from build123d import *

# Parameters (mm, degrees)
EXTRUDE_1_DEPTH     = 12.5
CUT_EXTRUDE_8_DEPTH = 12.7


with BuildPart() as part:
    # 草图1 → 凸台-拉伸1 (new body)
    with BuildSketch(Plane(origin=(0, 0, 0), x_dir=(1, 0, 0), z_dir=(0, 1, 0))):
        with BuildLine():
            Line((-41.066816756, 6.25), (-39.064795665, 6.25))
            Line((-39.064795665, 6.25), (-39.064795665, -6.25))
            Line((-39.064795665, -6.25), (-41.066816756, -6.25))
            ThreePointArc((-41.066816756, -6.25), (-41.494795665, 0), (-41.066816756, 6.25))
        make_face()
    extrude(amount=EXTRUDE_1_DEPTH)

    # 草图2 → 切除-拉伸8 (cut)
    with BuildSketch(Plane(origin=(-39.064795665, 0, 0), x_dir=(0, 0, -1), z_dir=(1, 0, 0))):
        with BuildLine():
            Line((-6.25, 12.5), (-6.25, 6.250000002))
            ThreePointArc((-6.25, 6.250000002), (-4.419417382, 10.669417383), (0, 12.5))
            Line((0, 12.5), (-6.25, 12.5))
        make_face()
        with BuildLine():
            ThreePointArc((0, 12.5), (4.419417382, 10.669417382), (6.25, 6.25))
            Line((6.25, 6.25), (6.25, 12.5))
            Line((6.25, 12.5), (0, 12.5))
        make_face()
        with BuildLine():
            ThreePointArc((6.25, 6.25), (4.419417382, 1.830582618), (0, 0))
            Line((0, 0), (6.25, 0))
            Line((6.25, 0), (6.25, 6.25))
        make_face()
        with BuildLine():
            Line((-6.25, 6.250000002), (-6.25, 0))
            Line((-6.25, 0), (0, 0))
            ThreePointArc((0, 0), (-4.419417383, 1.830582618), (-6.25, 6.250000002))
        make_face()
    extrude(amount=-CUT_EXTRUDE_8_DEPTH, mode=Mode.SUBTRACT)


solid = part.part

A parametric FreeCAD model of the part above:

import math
import FreeCAD as App
import Part
import Sketcher

V = App.Vector

doc = App.newDocument("Part")
body = doc.addObject("PartDesign::Body", "Body")

sketch1 = body.newObject("Sketcher::SketchObject", "Sketch")
sketch1.AttachmentSupport = (doc.getObject("XZ_Plane"), [""])
sketch1.MapMode = "FlatFace"
sketch1.addGeometry([
    Part.LineSegment(V(-39.064796, -6.25, 0), V(-41.066817, -6.25, 0)),
    Part.ArcOfCircle(Part.Circle(V(4.355204, 0, 0), V(0, 0, 1), 45.85), math.radians(172.165387), math.radians(187.834613)),
    Part.LineSegment(V(-41.066817, 6.25, 0), V(-39.064796, 6.25, 0)),
    Part.LineSegment(V(-39.064796, 6.25, 0), V(-39.064796, -6.25, 0)),
], False)
sketch1.addConstraint([
    Sketcher.Constraint("Coincident", 0, 2, 1, 2),
    Sketcher.Constraint("Coincident", 1, 1, 2, 1),
    Sketcher.Constraint("Coincident", 2, 2, 3, 1),
    Sketcher.Constraint("Coincident", 3, 2, 0, 1),
    Sketcher.Constraint("Horizontal", 0),
    Sketcher.Constraint("Horizontal", 2),
    Sketcher.Constraint("Vertical", 3),
    Sketcher.Constraint("Symmetric", 0, 2, 1, 1, -1),
    Sketcher.Constraint("Radius", 1, 45.85),
    Sketcher.Constraint("DistanceY", 3, 2, 3, 1, 12.5),
    Sketcher.Constraint("DistanceX", 2, 2, 1, 3, 43.42),
    Sketcher.Constraint("DistanceX", -1, 1, 1, 3, 4.355204),
])
pad1 = body.newObject("PartDesign::Pad", "Pad")
pad1.Profile = sketch1
pad1.Length = 12.5
pad1.Reversed = True

sketch2 = body.newObject("Sketcher::SketchObject", "Sketch001")
sketch2.AttachmentSupport = (doc.getObject("YZ_Plane"), [""])
sketch2.MapMode = "FlatFace"
sketch2.AttachmentOffset = App.Placement(V(0, 0, -39.064796), App.Rotation())
sketch2.addGeometry([
    Part.LineSegment(V(12.5, 6.25, 0), V(6.25, 6.25, 0)),
    Part.ArcOfCircle(Part.Circle(V(6.25, 0, 0), V(0, 0, 1), 6.25), math.radians(0), math.radians(90)),
    Part.LineSegment(V(12.5, 0, 0), V(12.5, 6.25, 0)),
    Part.ArcOfCircle(Part.Circle(V(6.25, 0, 0), V(0, 0, 1), 6.25), math.radians(-90), math.radians(0)),
    Part.LineSegment(V(6.25, -6.25, 0), V(12.5, -6.25, 0)),
    Part.LineSegment(V(12.5, -6.25, 0), V(12.5, 0, 0)),
    Part.ArcOfCircle(Part.Circle(V(6.25, 0, 0), V(0, 0, 1), 6.25), math.radians(-180), math.radians(-90)),
    Part.LineSegment(V(0, 0, 0), V(0, -6.25, 0)),
    Part.LineSegment(V(0, -6.25, 0), V(6.25, -6.25, 0)),
    Part.LineSegment(V(6.25, 6.25, 0), V(0, 6.25, 0)),
    Part.LineSegment(V(0, 6.25, 0), V(0, 0, 0)),
    Part.ArcOfCircle(Part.Circle(V(6.25, 0, 0), V(0, 0, 1), 6.25), math.radians(90), math.radians(180)),
], False)
sketch2.addConstraint([
    Sketcher.Constraint("Tangent", 0, 2, 1, 2),
    Sketcher.Constraint("Tangent", 1, 1, 2, 1),
    Sketcher.Constraint("Coincident", 2, 2, 0, 1),
    Sketcher.Constraint("Tangent", 3, 1, 4, 1),
    Sketcher.Constraint("Coincident", 4, 2, 5, 1),
    Sketcher.Constraint("Tangent", 5, 2, 3, 2),
    Sketcher.Constraint("Tangent", 6, 1, 7, 1),
    Sketcher.Constraint("Coincident", 7, 2, 8, 1),
    Sketcher.Constraint("Tangent", 8, 2, 6, 2),
    Sketcher.Constraint("Coincident", 9, 2, 10, 1),
    Sketcher.Constraint("Tangent", 10, 2, 11, 2),
    Sketcher.Constraint("Tangent", 11, 1, 9, 1),
    Sketcher.Constraint("Horizontal", 0),
    Sketcher.Constraint("Vertical", 2),
    Sketcher.Constraint("Horizontal", 4),
    Sketcher.Constraint("Vertical", 5),
    Sketcher.Constraint("Vertical", 7),
    Sketcher.Constraint("Horizontal", 8),
    Sketcher.Constraint("Horizontal", 9),
    Sketcher.Constraint("Vertical", 10),
    Sketcher.Constraint("Coincident", 6, 1, -1, 1),
    Sketcher.Constraint("Coincident", 10, 2, -1, 1),
    Sketcher.Constraint("Coincident", 3, 3, 1, 3),
    Sketcher.Constraint("Coincident", 6, 3, 1, 3),
    Sketcher.Constraint("Coincident", 11, 1, 0, 2),
    Sketcher.Constraint("Equal", 1, 3),
    Sketcher.Constraint("Radius", 1, 6.25),
])
pocket1 = body.newObject("PartDesign::Pocket", "Pocket")
pocket1.Profile = sketch2
pocket1.Length = 12.7

doc.recompute()
